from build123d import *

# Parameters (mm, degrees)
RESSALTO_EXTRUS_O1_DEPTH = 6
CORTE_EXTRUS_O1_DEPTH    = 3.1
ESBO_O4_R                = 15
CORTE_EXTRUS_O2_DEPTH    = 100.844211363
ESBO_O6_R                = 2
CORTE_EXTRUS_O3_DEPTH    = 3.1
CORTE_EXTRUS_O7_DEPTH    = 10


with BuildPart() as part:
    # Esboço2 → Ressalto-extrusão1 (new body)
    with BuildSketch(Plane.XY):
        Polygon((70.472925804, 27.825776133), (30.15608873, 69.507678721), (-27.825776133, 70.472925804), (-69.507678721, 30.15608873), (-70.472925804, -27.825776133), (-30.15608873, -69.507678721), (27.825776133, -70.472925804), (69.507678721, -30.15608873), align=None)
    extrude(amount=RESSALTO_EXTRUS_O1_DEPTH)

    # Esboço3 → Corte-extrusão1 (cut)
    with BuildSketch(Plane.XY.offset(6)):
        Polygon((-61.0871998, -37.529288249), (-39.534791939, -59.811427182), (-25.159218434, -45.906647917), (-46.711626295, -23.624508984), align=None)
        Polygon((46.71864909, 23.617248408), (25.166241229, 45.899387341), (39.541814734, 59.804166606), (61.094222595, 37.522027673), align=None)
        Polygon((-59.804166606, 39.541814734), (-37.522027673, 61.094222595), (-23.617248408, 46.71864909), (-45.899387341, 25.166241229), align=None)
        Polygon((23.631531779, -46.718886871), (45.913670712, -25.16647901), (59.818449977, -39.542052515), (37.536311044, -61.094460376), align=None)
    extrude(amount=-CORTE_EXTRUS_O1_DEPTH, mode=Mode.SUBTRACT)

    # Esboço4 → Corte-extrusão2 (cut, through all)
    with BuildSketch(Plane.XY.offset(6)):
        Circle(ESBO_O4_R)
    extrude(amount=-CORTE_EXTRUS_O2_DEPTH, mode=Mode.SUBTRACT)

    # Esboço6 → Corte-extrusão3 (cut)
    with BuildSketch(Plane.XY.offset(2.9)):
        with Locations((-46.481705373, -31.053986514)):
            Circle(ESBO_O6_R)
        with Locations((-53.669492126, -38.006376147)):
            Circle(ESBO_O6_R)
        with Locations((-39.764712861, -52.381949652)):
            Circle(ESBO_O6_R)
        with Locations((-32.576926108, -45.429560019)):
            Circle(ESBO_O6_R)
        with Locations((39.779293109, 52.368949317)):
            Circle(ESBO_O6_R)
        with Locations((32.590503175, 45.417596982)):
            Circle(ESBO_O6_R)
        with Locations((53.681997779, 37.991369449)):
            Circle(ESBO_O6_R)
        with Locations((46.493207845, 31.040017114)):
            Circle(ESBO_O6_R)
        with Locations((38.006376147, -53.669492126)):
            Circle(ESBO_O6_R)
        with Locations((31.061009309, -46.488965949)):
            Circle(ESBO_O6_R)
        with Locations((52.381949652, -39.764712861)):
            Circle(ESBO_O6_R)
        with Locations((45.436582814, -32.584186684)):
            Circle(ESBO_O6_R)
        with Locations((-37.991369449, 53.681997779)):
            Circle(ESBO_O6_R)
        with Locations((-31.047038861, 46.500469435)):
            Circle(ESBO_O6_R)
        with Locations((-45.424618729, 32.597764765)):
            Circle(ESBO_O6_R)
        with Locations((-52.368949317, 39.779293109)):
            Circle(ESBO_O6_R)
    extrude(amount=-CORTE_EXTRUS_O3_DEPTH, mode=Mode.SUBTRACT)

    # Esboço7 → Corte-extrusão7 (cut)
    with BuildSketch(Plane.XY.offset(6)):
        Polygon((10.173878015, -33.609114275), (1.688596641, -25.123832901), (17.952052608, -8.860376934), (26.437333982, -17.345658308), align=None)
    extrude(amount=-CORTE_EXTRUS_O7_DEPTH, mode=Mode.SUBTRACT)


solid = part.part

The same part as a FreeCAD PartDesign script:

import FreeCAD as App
import Part
import Sketcher
Q = App.Units.Quantity

doc = App.newDocument("Part")
body = doc.addObject("PartDesign::Body", "Body")

# Sketch on XY plane
sketch1 = body.newObject("Sketcher::SketchObject", "Sketch")
sketch1.AttachmentSupport = (doc.getObject("XY_Plane"), [""])
sketch1.MapMode = "FlatFace"
sketch1.addGeometry([
    Part.LineSegment(App.Vector(70, 28, 0), App.Vector(30, 70, 0)),  # 0
    Part.LineSegment(App.Vector(30, 70, 0), App.Vector(-28, 70, 0)),  # 1
    Part.LineSegment(App.Vector(-28, 70, 0), App.Vector(-70, 30, 0)),  # 2
    Part.LineSegment(App.Vector(-70, 30, 0), App.Vector(-70, -28, 0)),  # 3
    Part.LineSegment(App.Vector(-70, -28, 0), App.Vector(-30, -70, 0)),  # 4
    Part.LineSegment(App.Vector(-30, -70, 0), App.Vector(28, -70, 0)),  # 5
    Part.LineSegment(App.Vector(28, -70, 0), App.Vector(70, -30, 0)),  # 6
    Part.LineSegment(App.Vector(70, -30, 0), App.Vector(70, 28, 0)),  # 7
], False)
sketch1.addConstraint([
    Sketcher.Constraint("Coincident", 0, 2, 1, 1),
    Sketcher.Constraint("Coincident", 1, 2, 2, 1),
    Sketcher.Constraint("Coincident", 2, 2, 3, 1),
    Sketcher.Constraint("Coincident", 3, 2, 4, 1),
    Sketcher.Constraint("Coincident", 4, 2, 5, 1),
    Sketcher.Constraint("Coincident", 5, 2, 6, 1),
    Sketcher.Constraint("Coincident", 6, 2, 7, 1),
    Sketcher.Constraint("Coincident", 7, 2, 0, 1),
    Sketcher.Constraint("Symmetric", 0, 2, 4, 2, -1, 1),
    Sketcher.Constraint("Symmetric", 1, 2, 5, 2, -1, 1),
    Sketcher.Constraint("Symmetric", 2, 2, 6, 2, -1, 1),
    Sketcher.Constraint("Symmetric", 3, 2, 7, 2, -1, 1),
    Sketcher.Constraint("Perpendicular", 0, 2),
    Sketcher.Constraint("Perpendicular", 1, 3),
    Sketcher.Constraint("Equal", 0, 1),
    Sketcher.Constraint("Equal", 1, 2),
    Sketcher.Constraint("Equal", 2, 3),
    Sketcher.Constraint("Distance", 0, Q("57.989899 mm")),
    Sketcher.Constraint("DistanceY", 3, 2, 1, 2, Q("98.298702 mm")),
    Sketcher.Constraint("DistanceX", -1, 1, 0, 2, Q("30.156089 mm")),
])
pad1 = body.newObject("PartDesign::Pad", "Pad")
pad1.Profile = sketch1
pad1.Length = 6

# Sketch on XY plane
sketch2 = body.newObject("Sketcher::SketchObject", "Sketch001")
sketch2.AttachmentSupport = (doc.getObject("XY_Plane"), [""])
sketch2.MapMode = "FlatFace"
sketch2.AttachmentOffset = App.Placement(App.Vector(0, 0, 6), App.Rotation())
sketch2.addGeometry([
    Part.LineSegment(App.Vector(-61, -38, 0), App.Vector(-40, -60, 0)),  # 0
    Part.LineSegment(App.Vector(-40, -60, 0), App.Vector(-25, -46, 0)),  # 1
    Part.LineSegment(App.Vector(-25, -46, 0), App.Vector(-47, -24, 0)),  # 2
    Part.LineSegment(App.Vector(-47, -24, 0), App.Vector(-61, -38, 0)),  # 3
    Part.LineSegment(App.Vector(25, 46, 0), App.Vector(47, 24, 0)),  # 4
    Part.LineSegment(App.Vector(47, 24, 0), App.Vector(61, 38, 0)),  # 5
    Part.LineSegment(App.Vector(61, 38, 0), App.Vector(40, 60, 0)),  # 6
    Part.LineSegment(App.Vector(40, 60, 0), App.Vector(25, 46, 0)),  # 7
    Part.LineSegment(App.Vector(-38, 61, 0), App.Vector(-60, 40, 0)),  # 8
    Part.LineSegment(App.Vector(-60, 40, 0), App.Vector(-46, 25, 0)),  # 9
    Part.LineSegment(App.Vector(-46, 25, 0), App.Vector(-24, 47, 0)),  # 10
    Part.LineSegment(App.Vector(-24, 47, 0), App.Vector(-38, 61, 0)),  # 11
    Part.LineSegment(App.Vector(46, -25, 0), App.Vector(24, -47, 0)),  # 12
    Part.LineSegment(App.Vector(24, -47, 0), App.Vector(38, -61, 0)),  # 13
    Part.LineSegment(App.Vector(38, -61, 0), App.Vector(60, -40, 0)),  # 14
    Part.LineSegment(App.Vector(60, -40, 0), App.Vector(46, -25, 0)),  # 15
], False)
sketch2.addConstraint([
    Sketcher.Constraint("Coincident", 0, 2, 1, 1),
    Sketcher.Constraint("Coincident", 1, 2, 2, 1),
    Sketcher.Constraint("Coincident", 2, 2, 3, 1),
    Sketcher.Constraint("Coincident", 3, 2, 0, 1),
    Sketcher.Constraint("Coincident", 4, 2, 5, 1),
    Sketcher.Constraint("Coincident", 5, 2, 6, 1),
    Sketcher.Constraint("Coincident", 6, 2, 7, 1),
    Sketcher.Constraint("Coincident", 7, 2, 4, 1),
    Sketcher.Constraint("Coincident", 8, 2, 9, 1),
    Sketcher.Constraint("Coincident", 9, 2, 10, 1),
    Sketcher.Constraint("Coincident", 10, 2, 11, 1),
    Sketcher.Constraint("Coincident", 11, 2, 8, 1),
    Sketcher.Constraint("Coincident", 12, 2, 13, 1),
    Sketcher.Constraint("Coincident", 13, 2, 14, 1),
    Sketcher.Constraint("Coincident", 14, 2, 15, 1),
    Sketcher.Constraint("Coincident", 15, 2, 12, 1),
    Sketcher.Constraint("Perpendicular", 0, 1),
    Sketcher.Constraint("Perpendicular", 1, 2),
    Sketcher.Constraint("Perpendicular", 2, 3),
    Sketcher.Constraint("Perpendicular", 3, 4),
    Sketcher.Constraint("Perpendicular", 4, 5),
    Sketcher.Constraint("Perpendicular", 5, 6),
    Sketcher.Constraint("Perpendicular", 6, 7),
    Sketcher.Constraint("Parallel", 7, 8),
    Sketcher.Constraint("Perpendicular", 8, 9),
    Sketcher.Constraint("Perpendicular", 9, 10),
    Sketcher.Constraint("Perpendicular", 10, 11),
    Sketcher.Constraint("Perpendicular", 11, 12),
    Sketcher.Constraint("Perpendicular", 12, 13),
    Sketcher.Constraint("Perpendicular", 13, 14),
    Sketcher.Constraint("Perpendicular", 14, 15),
    Sketcher.Constraint("Equal", 2, 4),
    Sketcher.Constraint("Equal", 3, 5),
    Sketcher.Constraint("Equal", 6, 8),
    Sketcher.Constraint("Equal", 7, 9),
    Sketcher.Constraint("Equal", 10, 12),
    Sketcher.Constraint("Equal", 11, 13),
    Sketcher.Constraint("Distance", 0, Q("31 mm")),
    Sketcher.Constraint("Distance", 1, Q("20 mm")),
    Sketcher.Constraint("DistanceX", 3, 2, -1, 1, Q("61.0872 mm")),
    Sketcher.Constraint("DistanceY", 4, 2, 10, 2, Q("23.101401 mm")),
    Sketcher.Constraint("DistanceY", 12, 2, 3, 2, Q("9.189599 mm")),
    Sketcher.Constraint("DistanceX", 4, 2, 14, 2, Q("13.099801 mm")),
    Sketcher.Constraint("DistanceY", 14, 2, 4, 2, Q("63.159301 mm")),
    Sketcher.Constraint("DistanceX", 0, 2, -1, 1, Q("39.534792 mm")),
    Sketcher.Constraint("DistanceY", 2, 2, -1, 1, Q("23.624509 mm")),
    Sketcher.Constraint("DistanceX", -1, 1, 4, 2, Q("46.718649 mm")),
    Sketcher.Constraint("DistanceX", 10, 2, -1, 1, Q("23.617248 mm")),
])
pocket1 = body.newObject("PartDesign::Pocket", "Pocket")
pocket1.Profile = sketch2
pocket1.Length = 3.1

# Sketch on XY plane
sketch3 = body.newObject("Sketcher::SketchObject", "Sketch002")
sketch3.AttachmentSupport = (doc.getObject("XY_Plane"), [""])
sketch3.MapMode = "FlatFace"
sketch3.AttachmentOffset = App.Placement(App.Vector(0, 0, 6), App.Rotation())
sketch3.addGeometry(Part.Circle(App.Vector(0, 0, 0), App.Vector(0, 0, 1), 15), False)
sketch3.addConstraint([
    Sketcher.Constraint("Coincident", 0, 3, -1, 1),
    Sketcher.Constraint("Diameter", 0, Q("30 mm")),
])
pocket2 = body.newObject("PartDesign::Pocket", "Pocket001")
pocket2.Profile = sketch3
pocket2.Type = "ThroughAll"

# Sketch on XY plane
sketch4 = body.newObject("Sketcher::SketchObject", "Sketch003")
sketch4.AttachmentSupport = (doc.getObject("XY_Plane"), [""])
sketch4.MapMode = "FlatFace"
sketch4.AttachmentOffset = App.Placement(App.Vector(0, 0, 2.9), App.Rotation())
sketch4.addGeometry([
    Part.Circle(App.Vector(-46.5, -31.1, 0), App.Vector(0, 0, 1), 2),  # 0
    Part.Circle(App.Vector(-53.7, -38, 0), App.Vector(0, 0, 1), 2),  # 1
    Part.Circle(App.Vector(-39.8, -52.4, 0), App.Vector(0, 0, 1), 2),  # 2
    Part.Circle(App.Vector(-32.6, -45.4, 0), App.Vector(0, 0, 1), 2),  # 3
    Part.Circle(App.Vector(39.8, 52.4, 0), App.Vector(0, 0, 1), 2),  # 4
    Part.Circle(App.Vector(32.6, 45.4, 0), App.Vector(0, 0, 1), 2),  # 5
    Part.Circle(App.Vector(53.7, 38, 0), App.Vector(0, 0, 1), 2),  # 6
    Part.Circle(App.Vector(46.5, 31, 0), App.Vector(0, 0, 1), 2),  # 7
    Part.Circle(App.Vector(38, -53.7, 0), App.Vector(0, 0, 1), 2),  # 8
    Part.Circle(App.Vector(31.1, -46.5, 0), App.Vector(0, 0, 1), 2),  # 9
    Part.Circle(App.Vector(52.4, -39.8, 0), App.Vector(0, 0, 1), 2),  # 10
    Part.Circle(App.Vector(45.4, -32.6, 0), App.Vector(0, 0, 1), 2),  # 11
    Part.Circle(App.Vector(-38, 53.7, 0), App.Vector(0, 0, 1), 2),  # 12
    Part.Circle(App.Vector(-31, 46.5, 0), App.Vector(0, 0, 1), 2),  # 13
    Part.Circle(App.Vector(-45.4, 32.6, 0), App.Vector(0, 0, 1), 2),  # 14
    Part.Circle(App.Vector(-52.4, 39.8, 0), App.Vector(0, 0, 1), 2),  # 15
], False)
sketch4.addConstraint([
    Sketcher.Constraint("Equal", 0, 1),
    Sketcher.Constraint("Equal", 1, 2),
    Sketcher.Constraint("Equal", 2, 3),
    Sketcher.Constraint("Equal", 3, 4),
    Sketcher.Constraint("Equal", 4, 5),
    Sketcher.Constraint("Equal", 5, 6),
    Sketcher.Constraint("Equal", 6, 7),
    Sketcher.Constraint("Equal", 7, 8),
    Sketcher.Constraint("Equal", 8, 9),
    Sketcher.Constraint("Equal", 9, 10),
    Sketcher.Constraint("Equal", 10, 11),
    Sketcher.Constraint("Equal", 11, 12),
    Sketcher.Constraint("Equal", 12, 13),
    Sketcher.Constraint("Equal", 13, 14),
    Sketcher.Constraint("Equal", 14, 15),
    Sketcher.Constraint("Diameter", 0, Q("4 mm")),
    Sketcher.Constraint("DistanceX", 0, 3, 4, 3, Q("86.260998 mm")),
    Sketcher.Constraint("DistanceY", 2, 3, 4, 3, Q("104.750899 mm")),
    Sketcher.Constraint("DistanceX", 9, 3, 7, 3, Q("15.432199 mm")),
    Sketcher.Constraint("DistanceY", 5, 3, 12, 3, Q("8.264401 mm")),
    Sketcher.Constraint("DistanceY", 2, 3, -1, 1, Q("52.38195 mm")),
    Sketcher.Constraint("DistanceY", 3, 3, -1, 1, Q("45.42956 mm")),
    Sketcher.Constraint("DistanceY", -1, 1, 6, 3, Q("37.991369 mm")),
    Sketcher.Constraint("DistanceX", -1, 1, 9, 3, Q("31.061009 mm")),
    Sketcher.Constraint("DistanceX", -1, 1, 10, 3, Q("52.38195 mm")),
    Sketcher.Constraint("DistanceX", 12, 3, -1, 1, Q("37.991369 mm")),
    Sketcher.Constraint("DistanceX", 13, 3, -1, 1, Q("31.047039 mm")),
    Sketcher.Constraint("DistanceY", -1, 1, 13, 3, Q("46.500469 mm")),
    Sketcher.Constraint("DistanceX", 14, 3, -1, 1, Q("45.424619 mm")),
    Sketcher.Constraint("DistanceX", 15, 3, -1, 1, Q("52.368949 mm")),
    Sketcher.Constraint("DistanceY", 1, 3, 0, 3, Q("6.95239 mm")),
    Sketcher.Constraint("DistanceX", 1, 3, 2, 3, Q("13.904779 mm")),
    Sketcher.Constraint("DistanceX", 0, 3, 3, 3, Q("13.904779 mm")),
    Sketcher.Constraint("DistanceX", 5, 3, 4, 3, Q("7.18879 mm")),
    Sketcher.Constraint("DistanceX", 2, 3, 6, 3, Q("93.446711 mm")),
    Sketcher.Constraint("DistanceX", 7, 3, 6, 3, Q("7.18879 mm")),
    Sketcher.Constraint("DistanceY", 7, 3, 5, 3, Q("14.37758 mm")),
    Sketcher.Constraint("DistanceX", 2, 3, 8, 3, Q("77.771089 mm")),
    Sketcher.Constraint("DistanceY", 8, 3, 7, 3, Q("84.709509 mm")),
    Sketcher.Constraint("DistanceX", 0, 3, 8, 3, Q("84.488082 mm")),
    Sketcher.Constraint("DistanceY", 8, 3, 6, 3, Q("91.660862 mm")),
    Sketcher.Constraint("DistanceY", 9, 3, 0, 3, Q("15.434979 mm")),
    Sketcher.Constraint("DistanceY", 8, 3, 10, 3, Q("13.904779 mm")),
    Sketcher.Constraint("DistanceY", 9, 3, 11, 3, Q("13.904779 mm")),
    Sketcher.Constraint("DistanceY", 0, 3, 14, 3, Q("63.651751 mm")),
    Sketcher.Constraint("DistanceY", 14, 3, 15, 3, Q("7.181528 mm")),
    Sketcher.Constraint("DistanceY", 0, 3, -1, 1, Q("31.053987 mm")),
    Sketcher.Constraint("DistanceX", -1, 1, 11, 3, Q("45.436583 mm")),
])
pocket3 = body.newObject("PartDesign::Pocket", "Pocket002")
pocket3.Profile = sketch4
pocket3.Length = 3.1

# Sketch on XY plane
sketch5 = body.newObject("Sketcher::SketchObject", "Sketch004")
sketch5.AttachmentSupport = (doc.getObject("XY_Plane"), [""])
sketch5.MapMode = "FlatFace"
sketch5.AttachmentOffset = App.Placement(App.Vector(0, 0, 6), App.Rotation())
sketch5.addGeometry([
    Part.LineSegment(App.Vector(2, -25, 0), App.Vector(10, -34, 0)),
    Part.LineSegment(App.Vector(10, -34, 0), App.Vector(26, -17, 0)),
    Part.LineSegment(App.Vector(26, -17, 0), App.Vector(18, -9, 0)),
    Part.LineSegment(App.Vector(18, -9, 0), App.Vector(2, -25, 0)),
], False)
sketch5.addConstraint([
    Sketcher.Constraint("Coincident", 0, 2, 1, 1),
    Sketcher.Constraint("Coincident", 1, 2, 2, 1),
    Sketcher.Constraint("Coincident", 2, 2, 3, 1),
    Sketcher.Constraint("Coincident", 3, 2, 0, 1),
    Sketcher.Constraint("Perpendicular", 0, 1),
    Sketcher.Constraint("Perpendicular", 1, 2),
    Sketcher.Constraint("Perpendicular", 2, 3),
    Sketcher.Constraint("Angle", 0, Q("-45 deg")),
    Sketcher.Constraint("Distance", 0, Q("12 mm")),
    Sketcher.Constraint("Distance", 1, Q("23 mm")),
    Sketcher.Constraint("DistanceX", -1, 1, 0, 2, Q("10.173878 mm")),
    Sketcher.Constraint("DistanceY", 1, 2, -1, 1, Q("17.345658 mm")),
])
pocket4 = body.newObject("PartDesign::Pocket", "Pocket003")
pocket4.Profile = sketch5
pocket4.Length = 10

doc.recompute()
